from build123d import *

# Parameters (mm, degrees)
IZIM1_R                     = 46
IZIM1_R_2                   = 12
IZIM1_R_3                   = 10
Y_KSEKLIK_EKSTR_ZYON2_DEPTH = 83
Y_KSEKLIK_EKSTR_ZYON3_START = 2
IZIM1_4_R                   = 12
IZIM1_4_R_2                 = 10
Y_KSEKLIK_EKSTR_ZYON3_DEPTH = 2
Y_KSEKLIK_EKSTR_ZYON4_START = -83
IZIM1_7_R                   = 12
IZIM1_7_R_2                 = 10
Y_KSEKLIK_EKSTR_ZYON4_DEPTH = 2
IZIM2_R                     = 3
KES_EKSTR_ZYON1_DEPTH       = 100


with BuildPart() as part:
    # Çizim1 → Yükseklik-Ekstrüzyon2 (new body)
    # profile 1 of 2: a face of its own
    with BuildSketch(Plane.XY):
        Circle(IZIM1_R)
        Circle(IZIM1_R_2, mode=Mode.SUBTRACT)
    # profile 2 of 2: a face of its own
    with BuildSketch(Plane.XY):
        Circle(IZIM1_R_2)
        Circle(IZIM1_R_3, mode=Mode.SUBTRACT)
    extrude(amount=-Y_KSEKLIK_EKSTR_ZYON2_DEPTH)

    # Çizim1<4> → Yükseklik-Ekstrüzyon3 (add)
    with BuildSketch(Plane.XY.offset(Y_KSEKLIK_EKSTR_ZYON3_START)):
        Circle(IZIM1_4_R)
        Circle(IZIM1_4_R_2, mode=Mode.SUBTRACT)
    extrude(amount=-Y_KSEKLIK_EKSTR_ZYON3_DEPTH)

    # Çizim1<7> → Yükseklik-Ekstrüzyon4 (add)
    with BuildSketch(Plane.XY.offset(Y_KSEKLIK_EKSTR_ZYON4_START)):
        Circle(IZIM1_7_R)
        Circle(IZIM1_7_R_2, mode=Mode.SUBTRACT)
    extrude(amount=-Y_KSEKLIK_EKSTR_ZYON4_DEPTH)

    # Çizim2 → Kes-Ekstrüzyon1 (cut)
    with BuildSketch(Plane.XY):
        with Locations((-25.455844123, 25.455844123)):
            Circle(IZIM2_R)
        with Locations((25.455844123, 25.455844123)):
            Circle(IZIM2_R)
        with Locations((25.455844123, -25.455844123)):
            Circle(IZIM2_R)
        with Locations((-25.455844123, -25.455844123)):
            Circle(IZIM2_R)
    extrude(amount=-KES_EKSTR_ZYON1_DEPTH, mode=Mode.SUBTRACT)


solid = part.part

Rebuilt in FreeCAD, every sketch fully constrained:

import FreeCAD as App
import Part
import Sketcher

V = App.Vector

doc = App.newDocument("Part")
body = doc.addObject("PartDesign::Body", "Body")

# Sketch on XY plane
sketch1 = doc.addObject("Sketcher::SketchObject", "Sketch")
body.addObject(sketch1)
sketch1.AttachmentSupport = (doc.XY_Plane, [""])
sketch1.MapMode = "FlatFace"
sketch1.addGeometry(Part.Circle(V(0, 0, 0), V(0, 0, 1), 46), False)
sketch1.addGeometry(Part.Circle(V(0, 0, 0), V(0, 0, 1), 10), False)
sketch1.addConstraint(Sketcher.Constraint("Coincident", 0, 3, -1, 1))
sketch1.addConstraint(Sketcher.Constraint("Coincident", 1, 3, -1, 1))
sketch1.addConstraint(Sketcher.Constraint("Diameter", 0, 92.0))
sketch1.addConstraint(Sketcher.Constraint("Diameter", 1, 20.0))
pad1 = doc.addObject("PartDesign::Pad", "Pad")
body.addObject(pad1)
pad1.Profile = sketch1
pad1.Length = 83
pad1.Reversed = True

# Sketch on XY plane
sketch2 = doc.addObject("Sketcher::SketchObject", "Sketch001")
body.addObject(sketch2)
sketch2.AttachmentSupport = (doc.XY_Plane, [""])
sketch2.MapMode = "FlatFace"
sketch2.AttachmentOffset = App.Placement(V(0, 0, 2), App.Rotation())
sketch2.addGeometry(Part.Circle(V(0, 0, 0), V(0, 0, 1), 12), False)
sketch2.addGeometry(Part.Circle(V(0, 0, 0), V(0, 0, 1), 10), False)
sketch2.addConstraint(Sketcher.Constraint("Coincident", 0, 3, -1, 1))
sketch2.addConstraint(Sketcher.Constraint("Coincident", 1, 3, -1, 1))
sketch2.addConstraint(Sketcher.Constraint("Diameter", 0, 24.0))
sketch2.addConstraint(Sketcher.Constraint("Diameter", 1, 20.0))
pad2 = doc.addObject("PartDesign::Pad", "Pad001")
body.addObject(pad2)
pad2.Profile = sketch2
pad2.Length = 2
pad2.Reversed = True

# Sketch on XY plane
sketch3 = doc.addObject("Sketcher::SketchObject", "Sketch002")
body.addObject(sketch3)
sketch3.AttachmentSupport = (doc.XY_Plane, [""])
sketch3.MapMode = "FlatFace"
sketch3.AttachmentOffset = App.Placement(V(0, 0, -83), App.Rotation())
sketch3.addGeometry(Part.Circle(V(0, 0, 0), V(0, 0, 1), 12), False)
sketch3.addGeometry(Part.Circle(V(0, 0, 0), V(0, 0, 1), 10), False)
sketch3.addConstraint(Sketcher.Constraint("Coincident", 0, 3, -1, 1))
sketch3.addConstraint(Sketcher.Constraint("Coincident", 1, 3, -1, 1))
sketch3.addConstraint(Sketcher.Constraint("Diameter", 0, 24.0))
sketch3.addConstraint(Sketcher.Constraint("Diameter", 1, 20.0))
pad3 = doc.addObject("PartDesign::Pad", "Pad002")
body.addObject(pad3)
pad3.Profile = sketch3
pad3.Length = 2
pad3.Reversed = True

# Sketch on XY plane
sketch4 = doc.addObject("Sketcher::SketchObject", "Sketch003")
body.addObject(sketch4)
sketch4.AttachmentSupport = (doc.XY_Plane, [""])
sketch4.MapMode = "FlatFace"
sketch4.addGeometry(Part.Circle(V(-25.455844, 25.455844, 0), V(0, 0, 1), 3), False)
sketch4.addGeometry(Part.Circle(V(25.455844, 25.455844, 0), V(0, 0, 1), 3), False)
sketch4.addGeometry(Part.Circle(V(25.455844, -25.455844, 0), V(0, 0, 1), 3), False)
sketch4.addGeometry(Part.Circle(V(-25.455844, -25.455844, 0), V(0, 0, 1), 3), False)
sketch4.addConstraint(Sketcher.Constraint("Equal", 0, 1))
sketch4.addConstraint(Sketcher.Constraint("Equal", 1, 2))
sketch4.addConstraint(Sketcher.Constraint("Equal", 2, 3))
sketch4.addConstraint(Sketcher.Constraint("Symmetric", 0, 3, 2, 3, -1, 1))
sketch4.addConstraint(Sketcher.Constraint("Symmetric", 1, 3, 3, 3, -1, 1))
sketch4.addConstraint(Sketcher.Constraint("Symmetric", 0, 3, 1, 3, -2))
sketch4.addConstraint(Sketcher.Constraint("Diameter", 0, 6.0))
sketch4.addConstraint(Sketcher.Constraint("DistanceX", 0, 3, 1, 3, 50.911688))
sketch4.addConstraint(Sketcher.Constraint("DistanceY", 2, 3, 1, 3, 50.911688))
pocket1 = doc.addObject("PartDesign::Pocket", "Pocket")
body.addObject(pocket1)
pocket1.Profile = sketch4
pocket1.Length = 100

doc.recompute()
